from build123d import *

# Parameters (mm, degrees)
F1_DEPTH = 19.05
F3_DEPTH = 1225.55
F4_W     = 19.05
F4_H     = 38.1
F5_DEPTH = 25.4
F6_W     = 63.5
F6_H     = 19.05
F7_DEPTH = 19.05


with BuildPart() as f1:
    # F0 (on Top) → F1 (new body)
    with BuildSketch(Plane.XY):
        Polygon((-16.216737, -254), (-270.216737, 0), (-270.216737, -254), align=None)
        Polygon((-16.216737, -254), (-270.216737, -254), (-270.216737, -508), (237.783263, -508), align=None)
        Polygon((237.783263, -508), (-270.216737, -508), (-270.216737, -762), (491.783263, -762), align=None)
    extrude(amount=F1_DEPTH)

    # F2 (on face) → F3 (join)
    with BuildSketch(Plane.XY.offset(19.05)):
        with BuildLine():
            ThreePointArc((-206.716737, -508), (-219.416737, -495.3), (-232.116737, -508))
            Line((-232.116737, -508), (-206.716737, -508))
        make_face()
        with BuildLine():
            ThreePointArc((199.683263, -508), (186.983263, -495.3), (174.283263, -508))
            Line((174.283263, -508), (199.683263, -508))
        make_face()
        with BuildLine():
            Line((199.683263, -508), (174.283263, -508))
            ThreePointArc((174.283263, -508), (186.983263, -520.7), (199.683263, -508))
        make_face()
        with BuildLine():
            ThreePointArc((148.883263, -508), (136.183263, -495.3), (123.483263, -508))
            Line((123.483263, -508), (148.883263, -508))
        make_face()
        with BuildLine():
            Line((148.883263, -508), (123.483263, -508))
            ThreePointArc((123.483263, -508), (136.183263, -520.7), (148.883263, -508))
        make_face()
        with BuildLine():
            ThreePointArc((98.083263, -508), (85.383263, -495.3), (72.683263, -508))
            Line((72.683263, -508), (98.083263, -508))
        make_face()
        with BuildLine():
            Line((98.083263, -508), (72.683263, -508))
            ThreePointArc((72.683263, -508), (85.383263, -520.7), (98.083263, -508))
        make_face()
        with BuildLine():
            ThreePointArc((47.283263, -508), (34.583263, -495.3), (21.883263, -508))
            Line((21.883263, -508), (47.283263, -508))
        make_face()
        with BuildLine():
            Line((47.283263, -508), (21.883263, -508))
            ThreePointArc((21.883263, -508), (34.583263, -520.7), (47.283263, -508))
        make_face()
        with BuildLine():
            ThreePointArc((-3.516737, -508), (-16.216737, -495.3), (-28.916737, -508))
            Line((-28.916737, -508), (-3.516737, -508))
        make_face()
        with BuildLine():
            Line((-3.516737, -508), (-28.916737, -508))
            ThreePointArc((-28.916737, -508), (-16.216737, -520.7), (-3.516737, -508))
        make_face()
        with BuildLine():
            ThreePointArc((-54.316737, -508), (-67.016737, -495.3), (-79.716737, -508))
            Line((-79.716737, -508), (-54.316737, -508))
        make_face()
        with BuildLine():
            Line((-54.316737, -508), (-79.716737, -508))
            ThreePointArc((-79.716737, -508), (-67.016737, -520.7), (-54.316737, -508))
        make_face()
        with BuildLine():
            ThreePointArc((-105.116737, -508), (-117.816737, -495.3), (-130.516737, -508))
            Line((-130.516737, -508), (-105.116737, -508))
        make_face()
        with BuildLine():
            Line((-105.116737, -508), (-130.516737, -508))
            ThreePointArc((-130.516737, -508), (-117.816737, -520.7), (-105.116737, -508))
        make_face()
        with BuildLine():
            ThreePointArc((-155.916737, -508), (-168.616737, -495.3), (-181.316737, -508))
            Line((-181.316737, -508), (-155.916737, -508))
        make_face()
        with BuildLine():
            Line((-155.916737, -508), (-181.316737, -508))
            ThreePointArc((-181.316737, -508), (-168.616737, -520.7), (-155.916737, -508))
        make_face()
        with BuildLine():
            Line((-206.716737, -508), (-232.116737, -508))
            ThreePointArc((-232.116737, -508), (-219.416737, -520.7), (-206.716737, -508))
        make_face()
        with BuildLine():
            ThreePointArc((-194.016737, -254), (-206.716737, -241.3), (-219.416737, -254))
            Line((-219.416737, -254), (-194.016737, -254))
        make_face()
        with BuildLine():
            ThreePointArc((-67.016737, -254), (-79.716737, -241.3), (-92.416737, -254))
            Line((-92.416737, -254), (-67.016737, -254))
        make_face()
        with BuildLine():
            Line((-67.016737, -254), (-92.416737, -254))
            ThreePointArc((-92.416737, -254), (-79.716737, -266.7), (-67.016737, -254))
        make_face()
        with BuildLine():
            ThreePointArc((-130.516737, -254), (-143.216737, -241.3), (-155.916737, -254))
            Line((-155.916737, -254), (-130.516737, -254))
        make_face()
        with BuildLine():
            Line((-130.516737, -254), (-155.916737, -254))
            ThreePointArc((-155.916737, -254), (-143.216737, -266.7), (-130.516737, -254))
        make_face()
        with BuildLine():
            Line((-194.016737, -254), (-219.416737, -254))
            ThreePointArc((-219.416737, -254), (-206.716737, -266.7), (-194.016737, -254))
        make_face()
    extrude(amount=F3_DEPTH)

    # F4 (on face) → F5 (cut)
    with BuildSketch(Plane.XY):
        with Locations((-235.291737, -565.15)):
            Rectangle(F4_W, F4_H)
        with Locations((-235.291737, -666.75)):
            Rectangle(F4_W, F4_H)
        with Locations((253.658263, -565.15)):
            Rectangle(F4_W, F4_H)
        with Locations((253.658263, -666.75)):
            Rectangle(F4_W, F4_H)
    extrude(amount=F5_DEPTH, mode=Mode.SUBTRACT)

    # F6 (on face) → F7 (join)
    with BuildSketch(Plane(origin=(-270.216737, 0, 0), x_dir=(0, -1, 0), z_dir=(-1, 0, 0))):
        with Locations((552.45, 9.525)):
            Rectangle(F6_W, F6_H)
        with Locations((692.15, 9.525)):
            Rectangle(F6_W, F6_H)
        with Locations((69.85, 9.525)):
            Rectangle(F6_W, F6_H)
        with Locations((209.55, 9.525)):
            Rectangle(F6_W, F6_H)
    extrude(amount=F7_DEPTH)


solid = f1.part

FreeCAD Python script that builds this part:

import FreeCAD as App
import Part
import Sketcher
Q = App.Units.Quantity

doc = App.newDocument("Part")
body = doc.addObject("PartDesign::Body", "Body")

# Sketch on XY plane
sketch1 = doc.addObject("Sketcher::SketchObject", "Sketch")
body.addObject(sketch1)
sketch1.AttachmentSupport = (doc.XY_Plane, [""])
sketch1.MapMode = "FlatFace"
sketch1.addGeometry(Part.LineSegment(App.Vector(-270.216737, 0, 0), App.Vector(-270.216737, -762, 0)), False)
sketch1.addGeometry(Part.LineSegment(App.Vector(-270.216737, -762, 0), App.Vector(491.783263, -762, 0)), False)
sketch1.addGeometry(Part.LineSegment(App.Vector(491.783263, -762, 0), App.Vector(-270.216737, 0, 0)), False)
sketch1.addConstraint(Sketcher.Constraint("Coincident", 0, 2, 1, 1))
sketch1.addConstraint(Sketcher.Constraint("Coincident", 1, 2, 2, 1))
sketch1.addConstraint(Sketcher.Constraint("Coincident", 2, 2, 0, 1))
sketch1.addConstraint(Sketcher.Constraint("Vertical", 0))
sketch1.addConstraint(Sketcher.Constraint("Horizontal", 1))
sketch1.addConstraint(Sketcher.Constraint("PointOnObject", 2, 2, -1))
sketch1.addConstraint(Sketcher.Constraint("Equal", 1, 0))
sketch1.addConstraint(Sketcher.Constraint("DistanceX", 1, 1, 1, 2, Q("30 in")))
sketch1.addConstraint(Sketcher.Constraint("DistanceX", 0, 2, -1, 1, Q("270.216737 mm")))
pad1 = doc.addObject("PartDesign::Pad", "Pad")
body.addObject(pad1)
pad1.Profile = sketch1
pad1.Length = Q("0.75 in")

# Sketch on XY plane
sketch2 = doc.addObject("Sketcher::SketchObject", "Sketch001")
body.addObject(sketch2)
sketch2.AttachmentSupport = (doc.XY_Plane, [""])
sketch2.MapMode = "FlatFace"
sketch2.AttachmentOffset = App.Placement(App.Vector(0, 0, 0.75 * 25.4), App.Rotation())
sketch2.addGeometry(Part.Circle(App.Vector(-219.416737, -508, 0), App.Vector(0, 0, 1), 12.7), False)
sketch2.addGeometry(Part.Circle(App.Vector(186.983263, -508, 0), App.Vector(0, 0, 1), 12.7), False)
sketch2.addGeometry(Part.Circle(App.Vector(136.183263, -508, 0), App.Vector(0, 0, 1), 12.7), False)
sketch2.addGeometry(Part.Circle(App.Vector(85.383263, -508, 0), App.Vector(0, 0, 1), 12.7), False)
sketch2.addGeometry(Part.Circle(App.Vector(34.583263, -508, 0), App.Vector(0, 0, 1), 12.7), False)
sketch2.addGeometry(Part.Circle(App.Vector(-16.216737, -508, 0), App.Vector(0, 0, 1), 12.7), False)
sketch2.addGeometry(Part.Circle(App.Vector(-67.016737, -508, 0), App.Vector(0, 0, 1), 12.7), False)
sketch2.addGeometry(Part.Circle(App.Vector(-117.816737, -508, 0), App.Vector(0, 0, 1), 12.7), False)
sketch2.addGeometry(Part.Circle(App.Vector(-168.616737, -508, 0), App.Vector(0, 0, 1), 12.7), False)
sketch2.addGeometry(Part.Circle(App.Vector(-206.716737, -254, 0), App.Vector(0, 0, 1), 12.7), False)
sketch2.addGeometry(Part.Circle(App.Vector(-79.716737, -254, 0), App.Vector(0, 0, 1), 12.7), False)
sketch2.addGeometry(Part.Circle(App.Vector(-143.216737, -254, 0), App.Vector(0, 0, 1), 12.7), False)
sketch2.addConstraint(Sketcher.Constraint("Equal", 0, 1))
sketch2.addConstraint(Sketcher.Constraint("Equal", 1, 2))
sketch2.addConstraint(Sketcher.Constraint("Equal", 2, 3))
sketch2.addConstraint(Sketcher.Constraint("Equal", 3, 4))
sketch2.addConstraint(Sketcher.Constraint("Equal", 4, 5))
sketch2.addConstraint(Sketcher.Constraint("Equal", 5, 6))
sketch2.addConstraint(Sketcher.Constraint("Equal", 6, 7))
sketch2.addConstraint(Sketcher.Constraint("Equal", 7, 8))
sketch2.addConstraint(Sketcher.Constraint("Equal", 8, 9))
sketch2.addConstraint(Sketcher.Constraint("Equal", 9, 10))
sketch2.addConstraint(Sketcher.Constraint("Equal", 10, 11))
sketch2.addConstraint(Sketcher.Constraint("Horizontal", 0, 3, 1, 3))
sketch2.addConstraint(Sketcher.Constraint("Horizontal", 1, 3, 2, 3))
sketch2.addConstraint(Sketcher.Constraint("Horizontal", 2, 3, 3, 3))
sketch2.addConstraint(Sketcher.Constraint("Horizontal", 3, 3, 4, 3))
sketch2.addConstraint(Sketcher.Constraint("Horizontal", 4, 3, 5, 3))
sketch2.addConstraint(Sketcher.Constraint("Horizontal", 5, 3, 6, 3))
sketch2.addConstraint(Sketcher.Constraint("Horizontal", 6, 3, 7, 3))
sketch2.addConstraint(Sketcher.Constraint("Horizontal", 7, 3, 8, 3))
sketch2.addConstraint(Sketcher.Constraint("Horizontal", 9, 3, 10, 3))
sketch2.addConstraint(Sketcher.Constraint("Horizontal", 10, 3, 11, 3))
sketch2.addConstraint(Sketcher.Constraint("Diameter", 0, Q("1 in")))
sketch2.addConstraint(Sketcher.Constraint("DistanceY", 0, 3, -1, 1, Q("20 in")))
sketch2.addConstraint(Sketcher.Constraint("DistanceY", 9, 3, -1, 1, Q("10 in")))
sketch2.addConstraint(Sketcher.Constraint("DistanceX", 0, 3, 1, 3, Q("16 in")))
sketch2.addConstraint(Sketcher.Constraint("DistanceX", 2, 3, 1, 3, Q("2 in")))
sketch2.addConstraint(Sketcher.Constraint("DistanceX", 3, 3, 2, 3, Q("2 in")))
sketch2.addConstraint(Sketcher.Constraint("DistanceX", 4, 3, 3, 3, Q("2 in")))
sketch2.addConstraint(Sketcher.Constraint("DistanceX", 5, 3, 4, 3, Q("2 in")))
sketch2.addConstraint(Sketcher.Constraint("DistanceX", 6, 3, 5, 3, Q("2 in")))
sketch2.addConstraint(Sketcher.Constraint("DistanceX", 7, 3, 6, 3, Q("2 in")))
sketch2.addConstraint(Sketcher.Constraint("DistanceX", 8, 3, 7, 3, Q("2 in")))
sketch2.addConstraint(Sketcher.Constraint("DistanceX", 9, 3, 10, 3, Q("5 in")))
sketch2.addConstraint(Sketcher.Constraint("DistanceX", 11, 3, 7, 3, Q("1 in")))
sketch2.addConstraint(Sketcher.Constraint("DistanceX", 0, 3, 9, 3, Q("0.5 in")))
sketch2.addConstraint(Sketcher.Constraint("DistanceX", 0, 3, -1, 1, Q("219.416737 mm")))
pad2 = doc.addObject("PartDesign::Pad", "Pad001")
body.addObject(pad2)
pad2.Profile = sketch2
pad2.Length = Q("48.25 in")

# Sketch on XY plane
sketch3 = doc.addObject("Sketcher::SketchObject", "Sketch002")
body.addObject(sketch3)
sketch3.AttachmentSupport = (doc.XY_Plane, [""])
sketch3.MapMode = "FlatFace"
sketch3.addGeometry(Part.LineSegment(App.Vector(-244.816737, -546.1, 0), App.Vector(-244.816737, -584.2, 0)), False)
sketch3.addGeometry(Part.LineSegment(App.Vector(-244.816737, -584.2, 0), App.Vector(-225.766737, -584.2, 0)), False)
sketch3.addGeometry(Part.LineSegment(App.Vector(-225.766737, -584.2, 0), App.Vector(-225.766737, -546.1, 0)), False)
sketch3.addGeometry(Part.LineSegment(App.Vector(-225.766737, -546.1, 0), App.Vector(-244.816737, -546.1, 0)), False)
sketch3.addGeometry(Part.LineSegment(App.Vector(-244.816737, -647.7, 0), App.Vector(-244.816737, -685.8, 0)), False)
sketch3.addGeometry(Part.LineSegment(App.Vector(-244.816737, -685.8, 0), App.Vector(-225.766737, -685.8, 0)), False)
sketch3.addGeometry(Part.LineSegment(App.Vector(-225.766737, -685.8, 0), App.Vector(-225.766737, -647.7, 0)), False)
sketch3.addGeometry(Part.LineSegment(App.Vector(-225.766737, -647.7, 0), App.Vector(-244.816737, -647.7, 0)), False)
sketch3.addGeometry(Part.LineSegment(App.Vector(244.133263, -546.1, 0), App.Vector(244.133263, -584.2, 0)), False)
sketch3.addGeometry(Part.LineSegment(App.Vector(244.133263, -584.2, 0), App.Vector(263.183263, -584.2, 0)), False)
sketch3.addGeometry(Part.LineSegment(App.Vector(263.183263, -584.2, 0), App.Vector(263.183263, -546.1, 0)), False)
sketch3.addGeometry(Part.LineSegment(App.Vector(263.183263, -546.1, 0), App.Vector(244.133263, -546.1, 0)), False)
sketch3.addGeometry(Part.LineSegment(App.Vector(244.133263, -647.7, 0), App.Vector(244.133263, -685.8, 0)), False)
sketch3.addGeometry(Part.LineSegment(App.Vector(244.133263, -685.8, 0), App.Vector(263.183263, -685.8, 0)), False)
sketch3.addGeometry(Part.LineSegment(App.Vector(263.183263, -685.8, 0), App.Vector(263.183263, -647.7, 0)), False)
sketch3.addGeometry(Part.LineSegment(App.Vector(263.183263, -647.7, 0), App.Vector(244.133263, -647.7, 0)), False)
sketch3.addConstraint(Sketcher.Constraint("Coincident", 0, 2, 1, 1))
sketch3.addConstraint(Sketcher.Constraint("Coincident", 1, 2, 2, 1))
sketch3.addConstraint(Sketcher.Constraint("Coincident", 2, 2, 3, 1))
sketch3.addConstraint(Sketcher.Constraint("Coincident", 3, 2, 0, 1))
sketch3.addConstraint(Sketcher.Constraint("Coincident", 4, 2, 5, 1))
sketch3.addConstraint(Sketcher.Constraint("Coincident", 5, 2, 6, 1))
sketch3.addConstraint(Sketcher.Constraint("Coincident", 6, 2, 7, 1))
sketch3.addConstraint(Sketcher.Constraint("Coincident", 7, 2, 4, 1))
sketch3.addConstraint(Sketcher.Constraint("Coincident", 8, 2, 9, 1))
sketch3.addConstraint(Sketcher.Constraint("Coincident", 9, 2, 10, 1))
sketch3.addConstraint(Sketcher.Constraint("Coincident", 10, 2, 11, 1))
sketch3.addConstraint(Sketcher.Constraint("Coincident", 11, 2, 8, 1))
sketch3.addConstraint(Sketcher.Constraint("Coincident", 12, 2, 13, 1))
sketch3.addConstraint(Sketcher.Constraint("Coincident", 13, 2, 14, 1))
sketch3.addConstraint(Sketcher.Constraint("Coincident", 14, 2, 15, 1))
sketch3.addConstraint(Sketcher.Constraint("Coincident", 15, 2, 12, 1))
sketch3.addConstraint(Sketcher.Constraint("Vertical", 0))
sketch3.addConstraint(Sketcher.Constraint("Horizontal", 1))
sketch3.addConstraint(Sketcher.Constraint("Vertical", 2))
sketch3.addConstraint(Sketcher.Constraint("Horizontal", 3))
sketch3.addConstraint(Sketcher.Constraint("Vertical", 4))
sketch3.addConstraint(Sketcher.Constraint("Horizontal", 5))
sketch3.addConstraint(Sketcher.Constraint("Vertical", 6))
sketch3.addConstraint(Sketcher.Constraint("Horizontal", 7))
sketch3.addConstraint(Sketcher.Constraint("Vertical", 8))
sketch3.addConstraint(Sketcher.Constraint("Horizontal", 9))
sketch3.addConstraint(Sketcher.Constraint("Vertical", 10))
sketch3.addConstraint(Sketcher.Constraint("Horizontal", 11))
sketch3.addConstraint(Sketcher.Constraint("Vertical", 12))
sketch3.addConstraint(Sketcher.Constraint("Horizontal", 13))
sketch3.addConstraint(Sketcher.Constraint("Vertical", 14))
sketch3.addConstraint(Sketcher.Constraint("Horizontal", 15))
sketch3.addConstraint(Sketcher.Constraint("Horizontal", 1, 2, 8, 2))
sketch3.addConstraint(Sketcher.Constraint("Horizontal", 3, 2, 10, 2))
sketch3.addConstraint(Sketcher.Constraint("Horizontal", 5, 2, 12, 2))
sketch3.addConstraint(Sketcher.Constraint("Horizontal", 7, 2, 14, 2))
sketch3.addConstraint(Sketcher.Constraint("Vertical", 3, 2, 4, 2))
sketch3.addConstraint(Sketcher.Constraint("Vertical", 2, 2, 5, 2))
sketch3.addConstraint(Sketcher.Constraint("Vertical", 11, 2, 12, 2))
sketch3.addConstraint(Sketcher.Constraint("Vertical", 10, 2, 13, 2))
sketch3.addConstraint(Sketcher.Constraint("Equal", 7, 9))
sketch3.addConstraint(Sketcher.Constraint("Equal", 2, 4))
sketch3.addConstraint(Sketcher.Constraint("DistanceY", 0, 2, 0, 1, Q("1.5 in")))
sketch3.addConstraint(Sketcher.Constraint("DistanceY", 0, 2, -1, 1, Q("23 in")))
sketch3.addConstraint(Sketcher.Constraint("DistanceY", 4, 2, -1, 1, Q("27 in")))
sketch3.addConstraint(Sketcher.Constraint("DistanceX", 1, 1, 1, 2, Q("0.75 in")))
sketch3.addConstraint(Sketcher.Constraint("DistanceX", 1, 2, 8, 2, Q("18.5 in")))
sketch3.addConstraint(Sketcher.Constraint("DistanceX", 0, 2, -1, 1, Q("244.816737 mm")))
pocket1 = doc.addObject("PartDesign::Pocket", "Pocket")
body.addObject(pocket1)
pocket1.Profile = sketch3
pocket1.Length = Q("1 in")
pocket1.Reversed = True

# Sketch on YZ plane
sketch4 = doc.addObject("Sketcher::SketchObject", "Sketch003")
body.addObject(sketch4)
sketch4.AttachmentSupport = (doc.YZ_Plane, [""])
sketch4.MapMode = "FlatFace"
sketch4.AttachmentOffset = App.Placement(App.Vector(0, 0, -270.216737), App.Rotation())
sketch4.addGeometry(Part.LineSegment(App.Vector(-520.7, 19.05, 0), App.Vector(-520.7, 0, 0)), False)
sketch4.addGeometry(Part.LineSegment(App.Vector(-520.7, 0, 0), App.Vector(-584.2, 0, 0)), False)
sketch4.addGeometry(Part.LineSegment(App.Vector(-584.2, 0, 0), App.Vector(-584.2, 19.05, 0)), False)
sketch4.addGeometry(Part.LineSegment(App.Vector(-584.2, 19.05, 0), App.Vector(-520.7, 19.05, 0)), False)
sketch4.addGeometry(Part.LineSegment(App.Vector(-660.4, 19.05, 0), App.Vector(-660.4, 0, 0)), False)
sketch4.addGeometry(Part.LineSegment(App.Vector(-660.4, 0, 0), App.Vector(-723.9, 0, 0)), False)
sketch4.addGeometry(Part.LineSegment(App.Vector(-723.9, 0, 0), App.Vector(-723.9, 19.05, 0)), False)
sketch4.addGeometry(Part.LineSegment(App.Vector(-723.9, 19.05, 0), App.Vector(-660.4, 19.05, 0)), False)
sketch4.addGeometry(Part.LineSegment(App.Vector(-38.1, 19.05, 0), App.Vector(-38.1, 0, 0)), False)
sketch4.addGeometry(Part.LineSegment(App.Vector(-38.1, 0, 0), App.Vector(-101.6, 0, 0)), False)
sketch4.addGeometry(Part.LineSegment(App.Vector(-101.6, 0, 0), App.Vector(-101.6, 19.05, 0)), False)
sketch4.addGeometry(Part.LineSegment(App.Vector(-101.6, 19.05, 0), App.Vector(-38.1, 19.05, 0)), False)
sketch4.addGeometry(Part.LineSegment(App.Vector(-177.8, 19.05, 0), App.Vector(-177.8, 0, 0)), False)
sketch4.addGeometry(Part.LineSegment(App.Vector(-177.8, 0, 0), App.Vector(-241.3, 0, 0)), False)
sketch4.addGeometry(Part.LineSegment(App.Vector(-241.3, 0, 0), App.Vector(-241.3, 19.05, 0)), False)
sketch4.addGeometry(Part.LineSegment(App.Vector(-241.3, 19.05, 0), App.Vector(-177.8, 19.05, 0)), False)
sketch4.addConstraint(Sketcher.Constraint("Coincident", 0, 2, 1, 1))
sketch4.addConstraint(Sketcher.Constraint("Coincident", 1, 2, 2, 1))
sketch4.addConstraint(Sketcher.Constraint("Coincident", 2, 2, 3, 1))
sketch4.addConstraint(Sketcher.Constraint("Coincident", 3, 2, 0, 1))
sketch4.addConstraint(Sketcher.Constraint("Coincident", 4, 2, 5, 1))
sketch4.addConstraint(Sketcher.Constraint("Coincident", 5, 2, 6, 1))
sketch4.addConstraint(Sketcher.Constraint("Coincident", 6, 2, 7, 1))
sketch4.addConstraint(Sketcher.Constraint("Coincident", 7, 2, 4, 1))
sketch4.addConstraint(Sketcher.Constraint("Coincident", 8, 2, 9, 1))
sketch4.addConstraint(Sketcher.Constraint("Coincident", 9, 2, 10, 1))
sketch4.addConstraint(Sketcher.Constraint("Coincident", 10, 2, 11, 1))
sketch4.addConstraint(Sketcher.Constraint("Coincident", 11, 2, 8, 1))
sketch4.addConstraint(Sketcher.Constraint("Coincident", 12, 2, 13, 1))
sketch4.addConstraint(Sketcher.Constraint("Coincident", 13, 2, 14, 1))
sketch4.addConstraint(Sketcher.Constraint("Coincident", 14, 2, 15, 1))
sketch4.addConstraint(Sketcher.Constraint("Coincident", 15, 2, 12, 1))
sketch4.addConstraint(Sketcher.Constraint("Vertical", 0))
sketch4.addConstraint(Sketcher.Constraint("Horizontal", 1))
sketch4.addConstraint(Sketcher.Constraint("Vertical", 2))
sketch4.addConstraint(Sketcher.Constraint("Horizontal", 3))
sketch4.addConstraint(Sketcher.Constraint("Vertical", 4))
sketch4.addConstraint(Sketcher.Constraint("Horizontal", 5))
sketch4.addConstraint(Sketcher.Constraint("Vertical", 6))
sketch4.addConstraint(Sketcher.Constraint("Horizontal", 7))
sketch4.addConstraint(Sketcher.Constraint("Vertical", 8))
sketch4.addConstraint(Sketcher.Constraint("Horizontal", 9))
sketch4.addConstraint(Sketcher.Constraint("Vertical", 10))
sketch4.addConstraint(Sketcher.Constraint("Horizontal", 11))
sketch4.addConstraint(Sketcher.Constraint("Vertical", 12))
sketch4.addConstraint(Sketcher.Constraint("Horizontal", 13))
sketch4.addConstraint(Sketcher.Constraint("Vertical", 14))
sketch4.addConstraint(Sketcher.Constraint("Horizontal", 15))
sketch4.addConstraint(Sketcher.Constraint("PointOnObject", 0, 2, -1))
sketch4.addConstraint(Sketcher.Constraint("PointOnObject", 4, 2, -1))
sketch4.addConstraint(Sketcher.Constraint("PointOnObject", 8, 2, -1))
sketch4.addConstraint(Sketcher.Constraint("PointOnObject", 12, 2, -1))
sketch4.addConstraint(Sketcher.Constraint("Horizontal", 3, 2, 6, 2))
sketch4.addConstraint(Sketcher.Constraint("Horizontal", 7, 2, 10, 2))
sketch4.addConstraint(Sketcher.Constraint("Horizontal", 11, 2, 14, 2))
sketch4.addConstraint(Sketcher.Constraint("Equal", 3, 5))
sketch4.addConstraint(Sketcher.Constraint("Equal", 7, 9))
sketch4.addConstraint(Sketcher.Constraint("Equal", 11, 13))
sketch4.addConstraint(Sketcher.Constraint("DistanceX", 1, 2, 1, 1, Q("2.5 in")))
sketch4.addConstraint(Sketcher.Constraint("DistanceX", 1, 2, -1, 1, Q("23 in")))
sketch4.addConstraint(Sketcher.Constraint("DistanceX", 4, 2, -1, 1, Q("26 in")))
sketch4.addConstraint(Sketcher.Constraint("DistanceX", 9, 2, -1, 1, Q("4 in")))
sketch4.addConstraint(Sketcher.Constraint("DistanceX", 12, 2, -1, 1, Q("7 in")))
sketch4.addConstraint(Sketcher.Constraint("DistanceY", 0, 2, 0, 1, Q("0.75 in")))
pad3 = doc.addObject("PartDesign::Pad", "Pad002")
body.addObject(pad3)
pad3.Profile = sketch4
pad3.Length = Q("0.75 in")
pad3.Reversed = True

doc.recompute()
